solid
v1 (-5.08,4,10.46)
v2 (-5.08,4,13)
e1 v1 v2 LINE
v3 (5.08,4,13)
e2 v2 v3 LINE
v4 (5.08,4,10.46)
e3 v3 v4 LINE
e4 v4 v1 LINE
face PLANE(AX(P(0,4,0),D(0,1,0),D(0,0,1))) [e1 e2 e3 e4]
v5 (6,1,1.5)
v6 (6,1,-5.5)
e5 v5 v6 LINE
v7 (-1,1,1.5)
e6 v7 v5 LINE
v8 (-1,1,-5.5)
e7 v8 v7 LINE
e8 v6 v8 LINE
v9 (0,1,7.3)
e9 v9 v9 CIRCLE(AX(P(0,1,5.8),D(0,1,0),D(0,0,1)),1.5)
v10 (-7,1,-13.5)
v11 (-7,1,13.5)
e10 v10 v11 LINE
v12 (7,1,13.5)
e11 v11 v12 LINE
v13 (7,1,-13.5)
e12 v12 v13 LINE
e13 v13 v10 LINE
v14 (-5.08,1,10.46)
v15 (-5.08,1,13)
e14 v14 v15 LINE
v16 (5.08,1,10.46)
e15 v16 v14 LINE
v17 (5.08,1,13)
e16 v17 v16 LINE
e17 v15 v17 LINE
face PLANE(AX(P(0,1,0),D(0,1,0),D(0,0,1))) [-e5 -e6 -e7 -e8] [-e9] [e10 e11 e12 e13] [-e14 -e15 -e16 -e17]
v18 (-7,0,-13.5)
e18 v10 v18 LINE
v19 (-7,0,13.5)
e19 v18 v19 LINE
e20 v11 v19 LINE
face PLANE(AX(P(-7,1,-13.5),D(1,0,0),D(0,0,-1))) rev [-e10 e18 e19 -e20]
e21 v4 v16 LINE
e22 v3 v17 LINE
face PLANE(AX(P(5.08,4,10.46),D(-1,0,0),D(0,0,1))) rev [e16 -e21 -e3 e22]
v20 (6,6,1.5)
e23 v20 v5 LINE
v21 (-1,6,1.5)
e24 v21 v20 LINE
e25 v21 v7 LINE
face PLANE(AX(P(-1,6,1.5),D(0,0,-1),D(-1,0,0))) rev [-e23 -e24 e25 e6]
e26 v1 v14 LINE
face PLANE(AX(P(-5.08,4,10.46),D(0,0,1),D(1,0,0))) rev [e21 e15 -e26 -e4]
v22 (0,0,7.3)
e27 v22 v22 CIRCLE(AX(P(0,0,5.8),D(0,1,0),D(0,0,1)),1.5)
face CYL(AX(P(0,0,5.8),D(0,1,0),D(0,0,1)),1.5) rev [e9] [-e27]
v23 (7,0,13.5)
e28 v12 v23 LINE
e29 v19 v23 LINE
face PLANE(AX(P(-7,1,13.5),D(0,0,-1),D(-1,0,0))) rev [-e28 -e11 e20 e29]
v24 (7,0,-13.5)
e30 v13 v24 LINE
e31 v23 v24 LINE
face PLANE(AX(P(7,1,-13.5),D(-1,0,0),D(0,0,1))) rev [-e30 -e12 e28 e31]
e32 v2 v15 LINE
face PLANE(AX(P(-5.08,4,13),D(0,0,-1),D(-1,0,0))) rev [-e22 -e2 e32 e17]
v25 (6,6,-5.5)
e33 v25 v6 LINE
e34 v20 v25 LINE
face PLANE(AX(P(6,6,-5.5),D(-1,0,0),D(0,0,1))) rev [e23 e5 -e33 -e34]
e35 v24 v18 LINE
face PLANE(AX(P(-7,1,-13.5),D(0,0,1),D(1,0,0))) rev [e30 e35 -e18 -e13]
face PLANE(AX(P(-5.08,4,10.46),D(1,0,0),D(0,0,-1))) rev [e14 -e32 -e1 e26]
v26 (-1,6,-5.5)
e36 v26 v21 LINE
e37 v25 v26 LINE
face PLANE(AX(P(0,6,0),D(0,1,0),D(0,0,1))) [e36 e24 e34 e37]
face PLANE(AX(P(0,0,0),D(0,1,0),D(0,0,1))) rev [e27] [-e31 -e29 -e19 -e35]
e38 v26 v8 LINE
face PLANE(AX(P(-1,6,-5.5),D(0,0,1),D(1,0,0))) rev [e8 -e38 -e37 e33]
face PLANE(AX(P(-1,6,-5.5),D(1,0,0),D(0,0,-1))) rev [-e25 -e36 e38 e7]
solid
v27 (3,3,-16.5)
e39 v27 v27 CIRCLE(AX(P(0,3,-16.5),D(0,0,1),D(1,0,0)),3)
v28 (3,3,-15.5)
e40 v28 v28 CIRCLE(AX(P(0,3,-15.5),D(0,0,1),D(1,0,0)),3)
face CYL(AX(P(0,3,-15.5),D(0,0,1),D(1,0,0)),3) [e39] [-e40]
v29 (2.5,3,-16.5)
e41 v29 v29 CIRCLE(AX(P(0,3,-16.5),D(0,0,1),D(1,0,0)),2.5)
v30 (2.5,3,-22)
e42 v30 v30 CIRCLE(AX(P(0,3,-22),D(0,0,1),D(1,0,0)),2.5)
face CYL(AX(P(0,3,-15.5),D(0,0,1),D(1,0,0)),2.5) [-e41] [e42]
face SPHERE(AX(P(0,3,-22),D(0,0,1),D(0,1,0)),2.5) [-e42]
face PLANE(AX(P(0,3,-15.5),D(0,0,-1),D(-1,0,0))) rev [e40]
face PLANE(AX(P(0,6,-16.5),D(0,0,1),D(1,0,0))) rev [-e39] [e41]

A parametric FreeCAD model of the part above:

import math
import FreeCAD as App
import Part
import Sketcher
Q = App.Units.Quantity


def add_polygon(sketch, points):
    """Adds a closed chain of lines whose ends are joined by coincident constraints."""
    first, n = sketch.GeometryCount, len(points)
    for a, b in zip(points, points[1:] + points[:1]):
        sketch.addGeometry(Part.LineSegment(App.Vector(*a, 0), App.Vector(*b, 0)), False)
    for i in range(n):
        sketch.addConstraint(Sketcher.Constraint("Coincident", first + i, 2, first + (i + 1) % n, 1))

doc = App.newDocument("Part")
body = doc.addObject("PartDesign::Body", "Body")

# Sketch on XZ plane
sketch1 = doc.addObject("Sketcher::SketchObject", "Sketch")
body.addObject(sketch1)
sketch1.AttachmentSupport = (doc.XZ_Plane, [""])
sketch1.MapMode = "FlatFace"
add_polygon(sketch1, [(-7, -14), (-7, 14), (7, 14), (7, -14)])  # lines 0-3
sketch1.addConstraint(Sketcher.Constraint("Vertical", 0))
sketch1.addConstraint(Sketcher.Constraint("Horizontal", 1))
sketch1.addConstraint(Sketcher.Constraint("Vertical", 2))
sketch1.addConstraint(Sketcher.Constraint("Horizontal", 3))
sketch1.addConstraint(Sketcher.Constraint("Symmetric", 0, 2, 2, 2, -1, 1))
sketch1.addConstraint(Sketcher.Constraint("DistanceX", 1, 1, 1, 2, Q("14 mm")))
sketch1.addConstraint(Sketcher.Constraint("DistanceY", 0, 1, 0, 2, Q("27 mm")))
pad1 = doc.addObject("PartDesign::Pad", "Pad")
body.addObject(pad1)
pad1.Profile = sketch1
pad1.Length = 1
pad1.Reversed = True

# Sketch on XZ plane
sketch2 = doc.addObject("Sketcher::SketchObject", "Sketch001")
body.addObject(sketch2)
sketch2.AttachmentSupport = (doc.XZ_Plane, [""])
sketch2.MapMode = "FlatFace"
sketch2.AttachmentOffset = App.Placement(App.Vector(0, 0, -1), App.Rotation())
sketch2.addGeometry(Part.Circle(App.Vector(0, 5.8, 0), App.Vector(0, 0, 1), 1.5), False)
sketch2.addConstraint(Sketcher.Constraint("PointOnObject", 0, 3, -2))
sketch2.addConstraint(Sketcher.Constraint("Diameter", 0, Q("3 mm")))
sketch2.addConstraint(Sketcher.Constraint("DistanceY", -1, 1, 0, 3, Q("5.8 mm")))
pocket1 = doc.addObject("PartDesign::Pocket", "Pocket")
body.addObject(pocket1)
pocket1.Profile = sketch2
pocket1.Type = "ThroughAll"
pocket1.Reversed = True

# Sketch on XZ plane
sketch3 = doc.addObject("Sketcher::SketchObject", "Sketch002")
body.addObject(sketch3)
sketch3.AttachmentSupport = (doc.XZ_Plane, [""])
sketch3.MapMode = "FlatFace"
sketch3.AttachmentOffset = App.Placement(App.Vector(0, 0, -1), App.Rotation())
add_polygon(sketch3, [(-1, -6), (-1, 2), (6, 2), (6, -6)])  # lines 0-3
sketch3.addConstraint(Sketcher.Constraint("Vertical", 0))
sketch3.addConstraint(Sketcher.Constraint("Horizontal", 1))
sketch3.addConstraint(Sketcher.Constraint("Vertical", 2))
sketch3.addConstraint(Sketcher.Constraint("Horizontal", 3))
sketch3.addConstraint(Sketcher.Constraint("Equal", 3, 0))
sketch3.addConstraint(Sketcher.Constraint("DistanceX", 1, 1, 1, 2, Q("7 mm")))
sketch3.addConstraint(Sketcher.Constraint("DistanceX", 0, 2, -1, 1, Q("1 mm")))
sketch3.addConstraint(Sketcher.Constraint("DistanceY", -1, 1, 0, 2, Q("1.5 mm")))
pad2 = doc.addObject("PartDesign::Pad", "Pad001")
body.addObject(pad2)
pad2.Profile = sketch3
pad2.Length = 5
pad2.Reversed = True

# Sketch on XZ plane
sketch4 = doc.addObject("Sketcher::SketchObject", "Sketch003")
body.addObject(sketch4)
sketch4.AttachmentSupport = (doc.XZ_Plane, [""])
sketch4.MapMode = "FlatFace"
sketch4.AttachmentOffset = App.Placement(App.Vector(0, 0, -1), App.Rotation())
add_polygon(sketch4, [(-5.1, 10.5), (-5.1, 13), (5.1, 13), (5.1, 10.5)])  # lines 0-3
sketch4.addConstraint(Sketcher.Constraint("Vertical", 0))
sketch4.addConstraint(Sketcher.Constraint("Horizontal", 1))
sketch4.addConstraint(Sketcher.Constraint("Vertical", 2))
sketch4.addConstraint(Sketcher.Constraint("Horizontal", 3))
sketch4.addConstraint(Sketcher.Constraint("DistanceY", -1, 1, 0, 2, Q("13 mm")))
sketch4.addConstraint(Sketcher.Constraint("DistanceX", 1, 1, 1, 2, Q("10.16 mm")))
sketch4.addConstraint(Sketcher.Constraint("DistanceY", 0, 1, 0, 2, Q("2.54 mm")))
sketch4.addConstraint(Sketcher.Constraint("DistanceX", 0, 2, -1, 1, Q("5.08 mm")))
pad3 = doc.addObject("PartDesign::Pad", "Pad002")
body.addObject(pad3)
pad3.Profile = sketch4
pad3.Length = 3
pad3.Reversed = True
body2 = doc.addObject("PartDesign::Body", "Body001")

# Sketch on YZ plane
sketch5 = doc.addObject("Sketcher::SketchObject", "Sketch004")
body2.addObject(sketch5)
sketch5.AttachmentSupport = (doc.getObject("YZ_Plane001"), [""])
sketch5.MapMode = "FlatFace"
sketch5.addGeometry(Part.LineSegment(App.Vector(6, -15.5, 0), App.Vector(3, -15.5, 0)), False)
sketch5.addGeometry(Part.LineSegment(App.Vector(3, -15.5, 0), App.Vector(3, -24.5, 0)), False)
sketch5.addGeometry(Part.ArcOfCircle(Part.Circle(App.Vector(3, -22, 0), App.Vector(0, 0, 1), 2.5), math.radians(-90), math.radians(0)), False)
sketch5.addGeometry(Part.LineSegment(App.Vector(5.5, -22, 0), App.Vector(5.5, -16.5, 0)), False)
sketch5.addGeometry(Part.LineSegment(App.Vector(5.5, -16.5, 0), App.Vector(6, -16.5, 0)), False)
sketch5.addGeometry(Part.LineSegment(App.Vector(6, -16.5, 0), App.Vector(6, -15.5, 0)), False)
sketch5.addGeometry(Part.LineSegment(App.Vector(3, -15.5, 0), App.Vector(3, -24.5, 0)), True)  # axis
sketch5.addConstraint(Sketcher.Constraint("Coincident", 0, 2, 1, 1))
sketch5.addConstraint(Sketcher.Constraint("Coincident", 1, 2, 2, 1))
sketch5.addConstraint(Sketcher.Constraint("Tangent", 2, 2, 3, 1))
sketch5.addConstraint(Sketcher.Constraint("Coincident", 3, 2, 4, 1))
sketch5.addConstraint(Sketcher.Constraint("Coincident", 4, 2, 5, 1))
sketch5.addConstraint(Sketcher.Constraint("Coincident", 5, 2, 0, 1))
sketch5.addConstraint(Sketcher.Constraint("Horizontal", 0))
sketch5.addConstraint(Sketcher.Constraint("Vertical", 1))
sketch5.addConstraint(Sketcher.Constraint("Vertical", 3))
sketch5.addConstraint(Sketcher.Constraint("Horizontal", 4))
sketch5.addConstraint(Sketcher.Constraint("Vertical", 5))
sketch5.addConstraint(Sketcher.Constraint("Vertical", 6))
sketch5.addConstraint(Sketcher.Constraint("Coincident", 6, 1, 0, 2))
sketch5.addConstraint(Sketcher.Constraint("Vertical", 2, 3, 0, 2))
sketch5.addConstraint(Sketcher.Constraint("Equal", 1, 6))
sketch5.addConstraint(Sketcher.Constraint("Radius", 2, Q("2.5 mm")))
sketch5.addConstraint(Sketcher.Constraint("DistanceX", 0, 2, 0, 1, Q("3 mm")))
sketch5.addConstraint(Sketcher.Constraint("DistanceY", 1, 2, 1, 1, Q("9 mm")))
sketch5.addConstraint(Sketcher.Constraint("DistanceY", 5, 1, 5, 2, Q("1 mm")))
sketch5.addConstraint(Sketcher.Constraint("DistanceX", -1, 1, 2, 3, Q("3 mm")))
sketch5.addConstraint(Sketcher.Constraint("DistanceY", 2, 3, -1, 1, Q("22 mm")))
revolution = doc.addObject("PartDesign::Revolution", "Revolution")
body2.addObject(revolution)
revolution.Profile = sketch5
revolution.ReferenceAxis = (sketch5, ["Axis0"])
revolution.Angle = 360

doc.recompute()
